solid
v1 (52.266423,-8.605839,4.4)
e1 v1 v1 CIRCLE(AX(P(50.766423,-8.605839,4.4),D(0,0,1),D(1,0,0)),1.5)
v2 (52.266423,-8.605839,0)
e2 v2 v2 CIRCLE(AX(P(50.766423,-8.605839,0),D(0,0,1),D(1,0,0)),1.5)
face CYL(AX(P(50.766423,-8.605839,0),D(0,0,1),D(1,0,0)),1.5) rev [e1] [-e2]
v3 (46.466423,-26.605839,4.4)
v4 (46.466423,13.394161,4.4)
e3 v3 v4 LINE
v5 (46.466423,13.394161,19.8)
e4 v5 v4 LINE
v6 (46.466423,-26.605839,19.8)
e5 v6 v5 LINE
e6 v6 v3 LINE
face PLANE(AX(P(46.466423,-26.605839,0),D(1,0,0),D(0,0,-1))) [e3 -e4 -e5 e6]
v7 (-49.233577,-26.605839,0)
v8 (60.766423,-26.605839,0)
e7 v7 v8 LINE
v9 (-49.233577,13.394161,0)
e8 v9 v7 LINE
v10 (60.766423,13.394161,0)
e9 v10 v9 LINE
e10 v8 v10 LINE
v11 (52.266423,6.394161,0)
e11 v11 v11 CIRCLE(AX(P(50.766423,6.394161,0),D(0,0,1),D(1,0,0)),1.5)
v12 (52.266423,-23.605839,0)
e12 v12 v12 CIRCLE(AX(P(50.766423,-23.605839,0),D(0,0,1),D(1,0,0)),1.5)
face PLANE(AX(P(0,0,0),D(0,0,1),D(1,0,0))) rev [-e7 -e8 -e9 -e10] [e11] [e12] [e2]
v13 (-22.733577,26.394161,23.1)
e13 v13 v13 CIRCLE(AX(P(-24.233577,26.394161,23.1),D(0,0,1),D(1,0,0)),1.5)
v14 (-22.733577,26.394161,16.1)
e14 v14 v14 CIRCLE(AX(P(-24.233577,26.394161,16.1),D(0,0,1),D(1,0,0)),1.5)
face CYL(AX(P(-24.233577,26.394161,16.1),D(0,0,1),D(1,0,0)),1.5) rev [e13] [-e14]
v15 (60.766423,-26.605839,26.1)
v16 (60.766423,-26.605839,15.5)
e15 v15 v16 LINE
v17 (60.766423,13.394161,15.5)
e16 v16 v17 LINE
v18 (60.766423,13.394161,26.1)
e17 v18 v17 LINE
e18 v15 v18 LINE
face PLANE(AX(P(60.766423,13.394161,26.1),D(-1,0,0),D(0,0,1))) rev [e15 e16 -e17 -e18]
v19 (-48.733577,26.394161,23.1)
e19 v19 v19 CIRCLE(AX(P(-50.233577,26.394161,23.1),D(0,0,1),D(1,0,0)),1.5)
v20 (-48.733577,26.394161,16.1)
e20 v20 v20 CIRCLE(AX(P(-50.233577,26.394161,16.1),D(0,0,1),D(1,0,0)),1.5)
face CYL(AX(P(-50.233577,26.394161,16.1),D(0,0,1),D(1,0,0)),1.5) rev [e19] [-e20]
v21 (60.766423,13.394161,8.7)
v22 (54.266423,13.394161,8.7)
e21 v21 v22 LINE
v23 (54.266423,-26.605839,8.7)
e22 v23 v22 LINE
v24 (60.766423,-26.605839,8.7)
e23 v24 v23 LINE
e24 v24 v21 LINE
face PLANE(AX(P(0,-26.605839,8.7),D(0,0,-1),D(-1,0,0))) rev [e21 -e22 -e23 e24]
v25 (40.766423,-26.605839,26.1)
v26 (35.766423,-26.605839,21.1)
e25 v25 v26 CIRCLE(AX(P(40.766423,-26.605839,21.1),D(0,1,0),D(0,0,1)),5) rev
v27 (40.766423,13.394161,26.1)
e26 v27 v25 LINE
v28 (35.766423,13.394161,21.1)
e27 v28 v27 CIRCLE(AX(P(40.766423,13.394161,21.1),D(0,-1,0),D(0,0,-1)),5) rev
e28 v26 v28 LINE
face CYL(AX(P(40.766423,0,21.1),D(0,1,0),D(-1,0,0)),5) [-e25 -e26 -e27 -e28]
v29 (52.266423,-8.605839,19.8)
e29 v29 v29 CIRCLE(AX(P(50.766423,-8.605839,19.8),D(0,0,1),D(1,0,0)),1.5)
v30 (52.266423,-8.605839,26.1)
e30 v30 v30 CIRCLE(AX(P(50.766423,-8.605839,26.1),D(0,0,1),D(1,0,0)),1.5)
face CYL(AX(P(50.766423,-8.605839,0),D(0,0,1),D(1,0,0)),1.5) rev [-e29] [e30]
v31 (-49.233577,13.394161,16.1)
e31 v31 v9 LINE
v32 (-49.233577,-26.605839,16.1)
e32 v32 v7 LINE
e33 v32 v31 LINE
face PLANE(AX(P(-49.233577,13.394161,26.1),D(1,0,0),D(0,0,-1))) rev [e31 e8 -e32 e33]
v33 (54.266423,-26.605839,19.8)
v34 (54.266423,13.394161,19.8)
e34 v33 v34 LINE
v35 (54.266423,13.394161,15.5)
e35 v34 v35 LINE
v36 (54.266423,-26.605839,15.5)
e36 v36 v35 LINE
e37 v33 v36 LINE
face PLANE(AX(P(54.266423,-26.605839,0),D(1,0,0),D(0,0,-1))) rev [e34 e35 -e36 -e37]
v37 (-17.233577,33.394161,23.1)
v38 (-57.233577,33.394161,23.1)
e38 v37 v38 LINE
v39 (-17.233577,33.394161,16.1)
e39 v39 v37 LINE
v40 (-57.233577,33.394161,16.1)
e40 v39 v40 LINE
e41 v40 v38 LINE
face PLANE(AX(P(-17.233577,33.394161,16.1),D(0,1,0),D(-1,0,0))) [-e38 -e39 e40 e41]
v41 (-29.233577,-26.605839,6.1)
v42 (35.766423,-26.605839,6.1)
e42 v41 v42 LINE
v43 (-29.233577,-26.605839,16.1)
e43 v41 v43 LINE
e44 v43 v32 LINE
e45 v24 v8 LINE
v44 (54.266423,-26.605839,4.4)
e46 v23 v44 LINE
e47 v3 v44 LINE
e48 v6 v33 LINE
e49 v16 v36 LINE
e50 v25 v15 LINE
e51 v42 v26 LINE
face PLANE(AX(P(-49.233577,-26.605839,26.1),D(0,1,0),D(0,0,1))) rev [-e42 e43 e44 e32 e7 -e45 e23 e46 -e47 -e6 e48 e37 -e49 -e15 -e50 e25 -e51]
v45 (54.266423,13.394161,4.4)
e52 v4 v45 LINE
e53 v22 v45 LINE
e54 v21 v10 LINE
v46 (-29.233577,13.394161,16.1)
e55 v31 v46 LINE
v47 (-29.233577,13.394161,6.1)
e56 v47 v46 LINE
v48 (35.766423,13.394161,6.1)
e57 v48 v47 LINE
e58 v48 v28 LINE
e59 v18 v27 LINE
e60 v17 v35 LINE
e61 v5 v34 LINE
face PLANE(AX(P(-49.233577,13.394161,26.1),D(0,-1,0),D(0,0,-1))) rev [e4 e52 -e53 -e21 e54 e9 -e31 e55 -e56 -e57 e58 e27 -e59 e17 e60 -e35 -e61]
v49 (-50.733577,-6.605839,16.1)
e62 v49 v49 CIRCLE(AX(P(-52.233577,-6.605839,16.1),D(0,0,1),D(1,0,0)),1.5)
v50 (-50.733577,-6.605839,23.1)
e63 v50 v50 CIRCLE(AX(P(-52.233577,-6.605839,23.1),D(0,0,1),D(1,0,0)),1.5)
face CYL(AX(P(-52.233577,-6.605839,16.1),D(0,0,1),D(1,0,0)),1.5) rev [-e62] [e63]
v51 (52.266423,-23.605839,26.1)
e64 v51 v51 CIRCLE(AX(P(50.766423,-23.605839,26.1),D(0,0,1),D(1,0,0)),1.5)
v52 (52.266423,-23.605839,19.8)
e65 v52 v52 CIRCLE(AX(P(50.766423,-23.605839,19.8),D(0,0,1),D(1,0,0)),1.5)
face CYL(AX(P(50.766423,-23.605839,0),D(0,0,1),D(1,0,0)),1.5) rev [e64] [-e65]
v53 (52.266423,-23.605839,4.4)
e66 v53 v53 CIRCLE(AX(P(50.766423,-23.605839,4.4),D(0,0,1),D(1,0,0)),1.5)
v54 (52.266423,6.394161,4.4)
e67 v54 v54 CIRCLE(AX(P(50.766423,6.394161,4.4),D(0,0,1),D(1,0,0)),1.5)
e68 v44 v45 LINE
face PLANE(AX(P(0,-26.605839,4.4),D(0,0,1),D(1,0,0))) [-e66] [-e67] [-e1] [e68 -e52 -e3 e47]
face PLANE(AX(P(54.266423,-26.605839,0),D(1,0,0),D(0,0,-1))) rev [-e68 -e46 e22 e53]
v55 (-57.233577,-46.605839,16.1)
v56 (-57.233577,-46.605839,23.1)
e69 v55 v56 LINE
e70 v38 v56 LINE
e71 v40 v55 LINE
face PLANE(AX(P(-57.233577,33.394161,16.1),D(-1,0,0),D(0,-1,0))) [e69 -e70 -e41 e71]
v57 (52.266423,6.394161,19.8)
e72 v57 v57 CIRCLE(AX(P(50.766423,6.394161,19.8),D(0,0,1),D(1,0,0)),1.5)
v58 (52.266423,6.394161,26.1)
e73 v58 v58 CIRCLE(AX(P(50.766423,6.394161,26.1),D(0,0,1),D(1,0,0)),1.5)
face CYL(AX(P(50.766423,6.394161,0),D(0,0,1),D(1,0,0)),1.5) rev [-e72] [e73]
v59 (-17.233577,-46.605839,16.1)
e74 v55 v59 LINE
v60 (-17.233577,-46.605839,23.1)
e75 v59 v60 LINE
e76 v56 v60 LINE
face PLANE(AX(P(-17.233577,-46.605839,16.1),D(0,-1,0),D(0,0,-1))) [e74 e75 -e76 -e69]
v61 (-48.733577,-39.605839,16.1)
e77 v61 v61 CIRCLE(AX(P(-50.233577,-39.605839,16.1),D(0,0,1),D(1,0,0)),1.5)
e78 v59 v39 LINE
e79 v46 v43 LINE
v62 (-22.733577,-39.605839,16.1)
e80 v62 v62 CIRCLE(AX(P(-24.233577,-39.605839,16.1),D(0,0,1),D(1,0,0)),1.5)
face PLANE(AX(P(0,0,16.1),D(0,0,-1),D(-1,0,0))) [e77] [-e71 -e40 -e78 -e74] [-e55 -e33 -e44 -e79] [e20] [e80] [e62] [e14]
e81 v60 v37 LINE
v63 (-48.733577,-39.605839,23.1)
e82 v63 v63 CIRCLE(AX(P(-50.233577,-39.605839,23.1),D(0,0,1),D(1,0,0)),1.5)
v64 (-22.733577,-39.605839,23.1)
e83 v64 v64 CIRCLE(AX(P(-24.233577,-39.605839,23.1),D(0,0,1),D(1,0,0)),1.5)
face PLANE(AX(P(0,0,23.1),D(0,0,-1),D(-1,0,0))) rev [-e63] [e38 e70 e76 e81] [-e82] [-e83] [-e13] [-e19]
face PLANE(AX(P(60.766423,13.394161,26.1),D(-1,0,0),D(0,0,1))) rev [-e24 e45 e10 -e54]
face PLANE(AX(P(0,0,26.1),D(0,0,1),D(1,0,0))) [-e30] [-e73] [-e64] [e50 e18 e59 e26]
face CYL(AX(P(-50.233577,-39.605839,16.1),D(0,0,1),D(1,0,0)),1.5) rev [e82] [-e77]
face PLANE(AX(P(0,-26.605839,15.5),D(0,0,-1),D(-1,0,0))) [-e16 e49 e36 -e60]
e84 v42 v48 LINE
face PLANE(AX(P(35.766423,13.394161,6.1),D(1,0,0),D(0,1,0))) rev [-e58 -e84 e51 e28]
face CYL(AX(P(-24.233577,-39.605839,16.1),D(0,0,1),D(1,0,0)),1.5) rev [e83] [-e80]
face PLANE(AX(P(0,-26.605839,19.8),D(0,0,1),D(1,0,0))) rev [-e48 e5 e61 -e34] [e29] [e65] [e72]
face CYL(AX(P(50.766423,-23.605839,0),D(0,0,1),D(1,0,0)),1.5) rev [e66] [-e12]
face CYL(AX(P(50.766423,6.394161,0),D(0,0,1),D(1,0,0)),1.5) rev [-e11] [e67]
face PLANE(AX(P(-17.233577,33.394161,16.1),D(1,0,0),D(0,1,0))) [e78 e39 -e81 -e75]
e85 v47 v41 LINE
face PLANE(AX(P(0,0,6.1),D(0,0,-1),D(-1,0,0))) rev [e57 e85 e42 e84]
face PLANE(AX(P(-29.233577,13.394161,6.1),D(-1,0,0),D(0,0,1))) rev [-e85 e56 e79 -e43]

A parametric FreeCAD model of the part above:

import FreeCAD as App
import Part
import Sketcher
Q = App.Units.Quantity


def edges_at(feature, points):
    """Names of the edges that pass closest to the given points."""
    edges = feature.Shape.Edges
    near = lambda p: min(range(len(edges)), key=lambda i: edges[i].distToShape(Part.Vertex(*p))[0])
    return sorted({f"Edge{near(p) + 1}" for p in points})


def add_polygon(sketch, points):
    """Adds a closed chain of lines whose ends are joined by coincident constraints."""
    first, n = sketch.GeometryCount, len(points)
    for a, b in zip(points, points[1:] + points[:1]):
        sketch.addGeometry(Part.LineSegment(App.Vector(*a, 0), App.Vector(*b, 0)), False)
    for i in range(n):
        sketch.addConstraint(Sketcher.Constraint("Coincident", first + i, 2, first + (i + 1) % n, 1))

doc = App.newDocument("Part")
body = doc.addObject("PartDesign::Body", "Body")

sketch1 = body.newObject("Sketcher::SketchObject", "Sketch")
sketch1.AttachmentSupport = (doc.getObject("XY_Plane"), [""])
sketch1.MapMode = "FlatFace"
add_polygon(sketch1, [(-49, 13), (-49, -27), (61, -27), (61, 13)])
sketch1.addConstraint([
    Sketcher.Constraint("Vertical", 0),
    Sketcher.Constraint("Horizontal", 1),
    Sketcher.Constraint("Vertical", 2),
    Sketcher.Constraint("Horizontal", 3),
    Sketcher.Constraint("DistanceX", 1, 1, 1, 2, Q("110 mm")),
    Sketcher.Constraint("DistanceY", 0, 2, 0, 1, Q("40 mm")),
    Sketcher.Constraint("DistanceY", 0, 2, -1, 1, Q("26.605839 mm")),
    Sketcher.Constraint("DistanceX", 0, 2, -1, 1, Q("49.233577 mm")),
])
pad1 = body.newObject("PartDesign::Pad", "Pad")
pad1.Profile = sketch1
pad1.Length = 26.1

sketch2 = body.newObject("Sketcher::SketchObject", "Sketch001")
sketch2.AttachmentSupport = (doc.getObject("XZ_Plane"), [""])
sketch2.MapMode = "FlatFace"
sketch2.AttachmentOffset = App.Placement(App.Vector(0, 0, -13.394161), App.Rotation())
add_polygon(sketch2, [(54.3, 15.5), (60.8, 15.5), (60.8, 8.7), (54.3, 8.7), (54.3, 4.4), (46.5, 4.4), (46.5, 19.8), (54.3, 19.8)])
sketch2.addConstraint([
    Sketcher.Constraint("Horizontal", 0),
    Sketcher.Constraint("Vertical", 1),
    Sketcher.Constraint("Horizontal", 2),
    Sketcher.Constraint("Vertical", 3),
    Sketcher.Constraint("Horizontal", 4),
    Sketcher.Constraint("Vertical", 5),
    Sketcher.Constraint("Horizontal", 6),
    Sketcher.Constraint("Vertical", 7),
    Sketcher.Constraint("Vertical", 3, 2, 6, 2),
    Sketcher.Constraint("Equal", 3, 7),
    Sketcher.Constraint("DistanceX", 0, 1, 0, 2, Q("6.5 mm")),
    Sketcher.Constraint("DistanceX", 4, 2, 4, 1, Q("7.8 mm")),
    Sketcher.Constraint("DistanceY", 1, 2, 1, 1, Q("6.8 mm")),
    Sketcher.Constraint("DistanceY", 3, 2, 3, 1, Q("4.3 mm")),
    Sketcher.Constraint("DistanceY", -1, 1, 0, 2, Q("15.5 mm")),
    Sketcher.Constraint("DistanceX", -1, 1, 0, 2, Q("60.766423 mm")),
])
pocket1 = body.newObject("PartDesign::Pocket", "Pocket")
pocket1.Profile = sketch2
pocket1.Type = "ThroughAll"
pocket1.Reversed = True

sketch3 = body.newObject("Sketcher::SketchObject", "Sketch002")
sketch3.AttachmentSupport = (doc.getObject("XY_Plane"), [""])
sketch3.MapMode = "FlatFace"
sketch3.AttachmentOffset = App.Placement(App.Vector(0, 0, 26.1), App.Rotation())
add_polygon(sketch3, [(-29, 13), (-29, -27), (36, -27), (36, 13)])
sketch3.addConstraint([
    Sketcher.Constraint("Vertical", 0),
    Sketcher.Constraint("Horizontal", 1),
    Sketcher.Constraint("Vertical", 2),
    Sketcher.Constraint("Horizontal", 3),
    Sketcher.Constraint("DistanceX", 1, 1, 1, 2, Q("65 mm")),
    Sketcher.Constraint("DistanceY", 0, 2, 0, 1, Q("40 mm")),
    Sketcher.Constraint("DistanceY", 0, 2, -1, 1, Q("26.605839 mm")),
    Sketcher.Constraint("DistanceX", 0, 2, -1, 1, Q("29.233577 mm")),
])
pocket2 = body.newObject("PartDesign::Pocket", "Pocket001")
pocket2.Profile = sketch3
pocket2.Length = 20

sketch4 = body.newObject("Sketcher::SketchObject", "Sketch003")
sketch4.AttachmentSupport = (doc.getObject("XY_Plane"), [""])
sketch4.MapMode = "FlatFace"
sketch4.AttachmentOffset = App.Placement(App.Vector(0, 0, 26.1), App.Rotation())
sketch4.addGeometry([
    Part.Circle(App.Vector(50.8, 6.4, 0), App.Vector(0, 0, 1), 1.5),
    Part.Circle(App.Vector(50.8, -8.6, 0), App.Vector(0, 0, 1), 1.5),
    Part.Circle(App.Vector(50.8, -23.6, 0), App.Vector(0, 0, 1), 1.5),
], False)
sketch4.addConstraint([
    Sketcher.Constraint("Equal", 0, 1),
    Sketcher.Constraint("Equal", 1, 2),
    Sketcher.Constraint("Vertical", 0, 3, 1, 3),
    Sketcher.Constraint("Vertical", 1, 3, 2, 3),
    Sketcher.Constraint("Diameter", 0, Q("3 mm")),
    Sketcher.Constraint("DistanceY", 1, 3, 0, 3, Q("15 mm")),
    Sketcher.Constraint("DistanceY", 2, 3, 1, 3, Q("15 mm")),
    Sketcher.Constraint("DistanceY", -1, 1, 0, 3, Q("6.394161 mm")),
    Sketcher.Constraint("DistanceX", -1, 1, 0, 3, Q("50.766423 mm")),
])
pocket3 = body.newObject("PartDesign::Pocket", "Pocket002")
pocket3.Profile = sketch4
pocket3.Type = "ThroughAll"
doc.recompute()

fillet = body.newObject("PartDesign::Fillet", "Fillet")
fillet.Base = (pocket3, edges_at(pocket3, [(35.766, -6.606, 26.1)]))
fillet.Radius = 5

sketch5 = body.newObject("Sketcher::SketchObject", "Sketch004")
sketch5.AttachmentSupport = (doc.getObject("XY_Plane"), [""])
sketch5.MapMode = "FlatFace"
sketch5.AttachmentOffset = App.Placement(App.Vector(0, 0, 26.1), App.Rotation())
add_polygon(sketch5, [(-49, 13), (-49, -27), (-29, -27), (-29, 13)])
sketch5.addConstraint([
    Sketcher.Constraint("Vertical", 0),
    Sketcher.Constraint("Horizontal", 1),
    Sketcher.Constraint("Vertical", 2),
    Sketcher.Constraint("Horizontal", 3),
    Sketcher.Constraint("DistanceX", 1, 1, 1, 2, Q("20 mm")),
    Sketcher.Constraint("DistanceY", 0, 2, 0, 1, Q("40 mm")),
    Sketcher.Constraint("DistanceY", 0, 2, -1, 1, Q("26.605839 mm")),
    Sketcher.Constraint("DistanceX", 0, 2, -1, 1, Q("49.233577 mm")),
])
pocket4 = body.newObject("PartDesign::Pocket", "Pocket003")
pocket4.Profile = sketch5
pocket4.Length = 3

sketch6 = body.newObject("Sketcher::SketchObject", "Sketch005")
sketch6.AttachmentSupport = (doc.getObject("XY_Plane"), [""])
sketch6.MapMode = "FlatFace"
sketch6.AttachmentOffset = App.Placement(App.Vector(0, 0, 23.1), App.Rotation())
add_polygon(sketch6, [(-57, 33), (-57, -47), (-17, -47), (-17, 33)])
sketch6.addConstraint([
    Sketcher.Constraint("Vertical", 0),
    Sketcher.Constraint("Horizontal", 1),
    Sketcher.Constraint("Vertical", 2),
    Sketcher.Constraint("Horizontal", 3),
    Sketcher.Constraint("DistanceX", 1, 1, 1, 2, Q("40 mm")),
    Sketcher.Constraint("DistanceY", 0, 2, 0, 1, Q("80 mm")),
    Sketcher.Constraint("DistanceY", 0, 2, -1, 1, Q("46.605839 mm")),
    Sketcher.Constraint("DistanceX", 0, 2, -1, 1, Q("57.233577 mm")),
])
pad2 = body.newObject("PartDesign::Pad", "Pad001")
pad2.Profile = sketch6
pad2.Length = 7
pad2.Reversed = True

sketch7 = body.newObject("Sketcher::SketchObject", "Sketch006")
sketch7.AttachmentSupport = (doc.getObject("XY_Plane"), [""])
sketch7.MapMode = "FlatFace"
sketch7.AttachmentOffset = App.Placement(App.Vector(0, 0, 23.1), App.Rotation())
sketch7.addGeometry([
    Part.Circle(App.Vector(-24.2, 26.4, 0), App.Vector(0, 0, 1), 1.5),
    Part.Circle(App.Vector(-50.2, 26.4, 0), App.Vector(0, 0, 1), 1.5),
    Part.Circle(App.Vector(-52.2, -6.6, 0), App.Vector(0, 0, 1), 1.5),
    Part.Circle(App.Vector(-50.2, -39.6, 0), App.Vector(0, 0, 1), 1.5),
    Part.Circle(App.Vector(-24.2, -39.6, 0), App.Vector(0, 0, 1), 1.5),
], False)
sketch7.addConstraint([
    Sketcher.Constraint("Equal", 0, 1),
    Sketcher.Constraint("Equal", 1, 2),
    Sketcher.Constraint("Equal", 2, 3),
    Sketcher.Constraint("Equal", 3, 4),
    Sketcher.Constraint("Horizontal", 0, 3, 1, 3),
    Sketcher.Constraint("Horizontal", 3, 3, 4, 3),
    Sketcher.Constraint("Vertical", 1, 3, 3, 3),
    Sketcher.Constraint("Vertical", 0, 3, 4, 3),
    Sketcher.Constraint("Diameter", 0, Q("3 mm")),
    Sketcher.Constraint("DistanceX", 1, 3, 0, 3, Q("26 mm")),
    Sketcher.Constraint("DistanceX", 2, 3, 1, 3, Q("2 mm")),
    Sketcher.Constraint("DistanceY", 2, 3, 1, 3, Q("33 mm")),
    Sketcher.Constraint("DistanceY", 3, 3, 2, 3, Q("33 mm")),
    Sketcher.Constraint("DistanceY", -1, 1, 0, 3, Q("26.394161 mm")),
    Sketcher.Constraint("DistanceX", 0, 3, -1, 1, Q("24.233577 mm")),
])
pocket5 = body.newObject("PartDesign::Pocket", "Pocket004")
pocket5.Profile = sketch7
pocket5.Length = 7

doc.recompute()
